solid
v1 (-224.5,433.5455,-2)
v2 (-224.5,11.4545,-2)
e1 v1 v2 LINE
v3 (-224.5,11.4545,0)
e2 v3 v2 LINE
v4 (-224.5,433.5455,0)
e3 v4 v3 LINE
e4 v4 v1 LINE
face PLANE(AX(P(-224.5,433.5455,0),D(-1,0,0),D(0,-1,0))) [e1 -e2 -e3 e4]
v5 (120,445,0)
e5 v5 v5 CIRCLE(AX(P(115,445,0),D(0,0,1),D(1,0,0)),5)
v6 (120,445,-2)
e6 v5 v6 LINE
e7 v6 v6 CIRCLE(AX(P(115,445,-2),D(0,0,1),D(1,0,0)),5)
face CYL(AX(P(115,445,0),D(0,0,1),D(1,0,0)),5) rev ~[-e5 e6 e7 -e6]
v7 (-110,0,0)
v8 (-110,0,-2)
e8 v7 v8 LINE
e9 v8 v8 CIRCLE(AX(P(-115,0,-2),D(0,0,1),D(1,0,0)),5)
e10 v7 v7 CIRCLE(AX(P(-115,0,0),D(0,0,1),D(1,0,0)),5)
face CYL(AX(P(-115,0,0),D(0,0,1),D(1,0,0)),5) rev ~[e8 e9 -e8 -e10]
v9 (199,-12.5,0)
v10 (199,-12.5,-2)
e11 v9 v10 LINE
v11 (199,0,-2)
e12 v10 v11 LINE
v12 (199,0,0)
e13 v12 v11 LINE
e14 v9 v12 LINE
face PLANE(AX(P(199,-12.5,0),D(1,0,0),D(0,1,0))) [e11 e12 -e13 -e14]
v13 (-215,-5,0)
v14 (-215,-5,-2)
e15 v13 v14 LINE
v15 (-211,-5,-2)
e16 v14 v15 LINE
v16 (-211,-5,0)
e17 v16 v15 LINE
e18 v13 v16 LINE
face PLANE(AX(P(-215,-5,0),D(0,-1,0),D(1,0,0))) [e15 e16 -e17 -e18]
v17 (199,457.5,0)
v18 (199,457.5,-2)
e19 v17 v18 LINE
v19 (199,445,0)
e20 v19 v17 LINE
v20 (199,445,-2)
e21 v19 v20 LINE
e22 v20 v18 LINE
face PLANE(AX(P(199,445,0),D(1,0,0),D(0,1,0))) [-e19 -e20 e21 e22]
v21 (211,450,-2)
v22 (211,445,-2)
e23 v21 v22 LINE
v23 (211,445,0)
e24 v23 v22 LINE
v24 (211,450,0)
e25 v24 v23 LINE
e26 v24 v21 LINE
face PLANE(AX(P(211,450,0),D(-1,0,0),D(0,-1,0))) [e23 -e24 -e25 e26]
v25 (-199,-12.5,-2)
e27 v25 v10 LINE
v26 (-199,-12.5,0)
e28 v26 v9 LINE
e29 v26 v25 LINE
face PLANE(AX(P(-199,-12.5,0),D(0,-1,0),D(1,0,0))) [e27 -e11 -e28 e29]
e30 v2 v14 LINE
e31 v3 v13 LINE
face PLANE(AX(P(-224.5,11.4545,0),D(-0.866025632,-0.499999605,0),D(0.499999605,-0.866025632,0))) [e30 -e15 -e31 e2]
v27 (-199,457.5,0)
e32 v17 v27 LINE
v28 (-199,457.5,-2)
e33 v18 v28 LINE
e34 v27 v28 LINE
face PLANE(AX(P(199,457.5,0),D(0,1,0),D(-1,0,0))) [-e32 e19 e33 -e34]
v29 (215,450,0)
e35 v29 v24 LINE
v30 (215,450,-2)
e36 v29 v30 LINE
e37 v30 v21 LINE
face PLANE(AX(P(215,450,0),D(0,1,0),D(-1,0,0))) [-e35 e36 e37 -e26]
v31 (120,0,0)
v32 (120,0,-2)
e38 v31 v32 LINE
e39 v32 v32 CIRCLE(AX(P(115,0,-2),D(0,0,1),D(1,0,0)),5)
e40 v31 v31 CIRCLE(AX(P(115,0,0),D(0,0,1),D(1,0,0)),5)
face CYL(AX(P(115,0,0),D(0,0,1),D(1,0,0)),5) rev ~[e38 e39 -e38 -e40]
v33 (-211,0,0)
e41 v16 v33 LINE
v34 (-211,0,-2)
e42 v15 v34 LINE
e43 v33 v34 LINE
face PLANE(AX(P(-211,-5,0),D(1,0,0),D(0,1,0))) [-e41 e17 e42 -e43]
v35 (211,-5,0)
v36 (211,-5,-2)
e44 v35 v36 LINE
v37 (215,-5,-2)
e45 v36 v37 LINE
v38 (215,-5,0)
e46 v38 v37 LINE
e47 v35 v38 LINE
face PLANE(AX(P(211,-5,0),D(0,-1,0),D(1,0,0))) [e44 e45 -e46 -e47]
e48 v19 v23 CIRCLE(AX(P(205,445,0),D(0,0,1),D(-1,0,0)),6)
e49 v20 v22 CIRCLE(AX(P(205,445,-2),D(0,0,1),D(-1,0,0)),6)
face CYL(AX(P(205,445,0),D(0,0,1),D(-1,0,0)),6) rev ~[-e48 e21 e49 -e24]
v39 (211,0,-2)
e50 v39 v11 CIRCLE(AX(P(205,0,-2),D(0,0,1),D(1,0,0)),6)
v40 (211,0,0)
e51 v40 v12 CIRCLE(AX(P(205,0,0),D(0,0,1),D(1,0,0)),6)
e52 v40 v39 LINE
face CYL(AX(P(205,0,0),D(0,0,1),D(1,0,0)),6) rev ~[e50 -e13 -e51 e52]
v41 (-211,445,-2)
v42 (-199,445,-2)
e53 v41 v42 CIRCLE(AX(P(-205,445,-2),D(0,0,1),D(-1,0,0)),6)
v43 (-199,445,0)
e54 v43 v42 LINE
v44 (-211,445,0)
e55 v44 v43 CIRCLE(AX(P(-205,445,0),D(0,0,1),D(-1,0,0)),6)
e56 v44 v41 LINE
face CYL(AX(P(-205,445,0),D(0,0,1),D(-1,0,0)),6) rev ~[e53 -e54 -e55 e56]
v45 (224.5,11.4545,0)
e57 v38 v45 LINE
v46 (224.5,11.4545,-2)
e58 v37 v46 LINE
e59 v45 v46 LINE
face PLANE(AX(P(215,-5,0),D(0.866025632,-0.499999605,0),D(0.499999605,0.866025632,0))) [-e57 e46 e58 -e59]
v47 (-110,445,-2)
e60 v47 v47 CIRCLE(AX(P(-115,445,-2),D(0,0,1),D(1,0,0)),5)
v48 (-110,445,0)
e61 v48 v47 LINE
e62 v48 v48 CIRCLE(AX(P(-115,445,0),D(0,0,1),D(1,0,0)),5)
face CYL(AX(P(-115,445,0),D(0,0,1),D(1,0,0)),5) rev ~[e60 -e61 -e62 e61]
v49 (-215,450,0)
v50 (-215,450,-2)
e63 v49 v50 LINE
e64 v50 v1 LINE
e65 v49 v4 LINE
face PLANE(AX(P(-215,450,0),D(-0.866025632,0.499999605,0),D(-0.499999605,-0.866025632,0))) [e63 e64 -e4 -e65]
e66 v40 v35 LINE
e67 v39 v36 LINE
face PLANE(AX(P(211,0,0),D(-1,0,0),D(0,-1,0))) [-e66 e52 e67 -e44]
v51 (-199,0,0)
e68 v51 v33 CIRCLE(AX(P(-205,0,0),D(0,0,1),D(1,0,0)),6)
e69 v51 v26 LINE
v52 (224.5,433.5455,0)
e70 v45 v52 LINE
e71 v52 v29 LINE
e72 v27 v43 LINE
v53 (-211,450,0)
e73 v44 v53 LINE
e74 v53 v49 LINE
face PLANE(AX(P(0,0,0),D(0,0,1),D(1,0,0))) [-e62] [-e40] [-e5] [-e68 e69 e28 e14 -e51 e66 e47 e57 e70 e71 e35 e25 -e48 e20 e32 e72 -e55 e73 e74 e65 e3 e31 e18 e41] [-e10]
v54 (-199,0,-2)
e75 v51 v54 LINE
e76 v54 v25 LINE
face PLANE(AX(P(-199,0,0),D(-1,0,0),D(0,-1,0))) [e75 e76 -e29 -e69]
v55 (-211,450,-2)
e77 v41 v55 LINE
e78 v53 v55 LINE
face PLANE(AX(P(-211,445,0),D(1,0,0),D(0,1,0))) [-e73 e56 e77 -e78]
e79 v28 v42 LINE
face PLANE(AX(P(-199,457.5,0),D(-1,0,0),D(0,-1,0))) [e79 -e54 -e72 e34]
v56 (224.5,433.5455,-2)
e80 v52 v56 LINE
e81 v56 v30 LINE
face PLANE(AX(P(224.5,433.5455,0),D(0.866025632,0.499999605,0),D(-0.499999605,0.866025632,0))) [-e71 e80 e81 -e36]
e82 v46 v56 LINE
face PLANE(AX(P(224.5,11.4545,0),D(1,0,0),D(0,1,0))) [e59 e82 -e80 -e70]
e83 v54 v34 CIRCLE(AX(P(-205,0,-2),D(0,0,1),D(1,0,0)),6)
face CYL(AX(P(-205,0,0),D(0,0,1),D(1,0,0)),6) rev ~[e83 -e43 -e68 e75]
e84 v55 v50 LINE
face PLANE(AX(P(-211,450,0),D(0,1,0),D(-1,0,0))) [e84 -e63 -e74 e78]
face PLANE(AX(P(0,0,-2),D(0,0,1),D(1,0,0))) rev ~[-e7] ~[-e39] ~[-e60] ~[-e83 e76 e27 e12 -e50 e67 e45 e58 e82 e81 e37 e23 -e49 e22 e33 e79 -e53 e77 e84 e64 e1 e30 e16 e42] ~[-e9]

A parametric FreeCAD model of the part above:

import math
import FreeCAD as App
import Part
import Sketcher
from FreeCAD import Vector
Q = App.Units.Quantity

doc = App.newDocument("Part")
body = doc.addObject("PartDesign::Body", "Body")

sketch1 = body.newObject("Sketcher::SketchObject", "Sketch")
sketch1.AttachmentSupport = (doc.getObject("XY_Plane"), [""])
sketch1.MapMode = "FlatFace"
sketch1.addGeometry([
    Part.LineSegment(Vector(-215, 450, 0), Vector(-224.5, 433.5, 0)),
    Part.LineSegment(Vector(-224.5, 433.5, 0), Vector(-224.5, 11.5, 0)),
    Part.LineSegment(Vector(-224.5, 11.5, 0), Vector(-215, -5, 0)),
    Part.LineSegment(Vector(-215, -5, 0), Vector(-211, -5, 0)),
    Part.LineSegment(Vector(-211, -5, 0), Vector(-211, 0, 0)),
    Part.ArcOfCircle(Part.Circle(Vector(-205, 0, 0), Vector(0, 0, 1), 6), math.radians(0), math.radians(180)),
    Part.LineSegment(Vector(-199, 0, 0), Vector(-199, -12.5, 0)),
    Part.LineSegment(Vector(-199, -12.5, 0), Vector(199, -12.5, 0)),
    Part.LineSegment(Vector(199, -12.5, 0), Vector(199, 0, 0)),
    Part.ArcOfCircle(Part.Circle(Vector(205, 0, 0), Vector(0, 0, 1), 6), math.radians(0), math.radians(180)),
    Part.LineSegment(Vector(211, 0, 0), Vector(211, -5, 0)),
    Part.LineSegment(Vector(211, -5, 0), Vector(215, -5, 0)),
    Part.LineSegment(Vector(215, -5, 0), Vector(224.5, 11.5, 0)),
    Part.LineSegment(Vector(224.5, 11.5, 0), Vector(224.5, 433.5, 0)),
    Part.LineSegment(Vector(224.5, 433.5, 0), Vector(215, 450, 0)),
    Part.LineSegment(Vector(215, 450, 0), Vector(211, 450, 0)),
    Part.LineSegment(Vector(211, 450, 0), Vector(211, 445, 0)),
    Part.ArcOfCircle(Part.Circle(Vector(205, 445, 0), Vector(0, 0, 1), 6), math.radians(180), math.radians(360)),
    Part.LineSegment(Vector(199, 445, 0), Vector(199, 457.5, 0)),
    Part.LineSegment(Vector(199, 457.5, 0), Vector(-199, 457.5, 0)),
    Part.LineSegment(Vector(-199, 457.5, 0), Vector(-199, 445, 0)),
    Part.ArcOfCircle(Part.Circle(Vector(-205, 445, 0), Vector(0, 0, 1), 6), math.radians(180), math.radians(360)),
    Part.LineSegment(Vector(-211, 445, 0), Vector(-211, 450, 0)),
    Part.LineSegment(Vector(-211, 450, 0), Vector(-215, 450, 0)),
    Part.Circle(Vector(-115, 0, 0), Vector(0, 0, 1), 5),
    Part.Circle(Vector(115, 0, 0), Vector(0, 0, 1), 5),
    Part.Circle(Vector(-115, 445, 0), Vector(0, 0, 1), 5),
    Part.Circle(Vector(115, 445, 0), Vector(0, 0, 1), 5),
], False)
sketch1.addConstraint([
    Sketcher.Constraint("Coincident", 0, 2, 1, 1),
    Sketcher.Constraint("Coincident", 1, 2, 2, 1),
    Sketcher.Constraint("Coincident", 2, 2, 3, 1),
    Sketcher.Constraint("Coincident", 3, 2, 4, 1),
    Sketcher.Constraint("Tangent", 4, 2, 5, 2),
    Sketcher.Constraint("Tangent", 5, 1, 6, 1),
    Sketcher.Constraint("Coincident", 6, 2, 7, 1),
    Sketcher.Constraint("Coincident", 7, 2, 8, 1),
    Sketcher.Constraint("Tangent", 8, 2, 9, 2),
    Sketcher.Constraint("Tangent", 9, 1, 10, 1),
    Sketcher.Constraint("Coincident", 10, 2, 11, 1),
    Sketcher.Constraint("Coincident", 11, 2, 12, 1),
    Sketcher.Constraint("Coincident", 12, 2, 13, 1),
    Sketcher.Constraint("Coincident", 13, 2, 14, 1),
    Sketcher.Constraint("Coincident", 14, 2, 15, 1),
    Sketcher.Constraint("Coincident", 15, 2, 16, 1),
    Sketcher.Constraint("Tangent", 16, 2, 17, 2),
    Sketcher.Constraint("Tangent", 17, 1, 18, 1),
    Sketcher.Constraint("Coincident", 18, 2, 19, 1),
    Sketcher.Constraint("Coincident", 19, 2, 20, 1),
    Sketcher.Constraint("Tangent", 20, 2, 21, 2),
    Sketcher.Constraint("Tangent", 21, 1, 22, 1),
    Sketcher.Constraint("Coincident", 22, 2, 23, 1),
    Sketcher.Constraint("Coincident", 23, 2, 0, 1),
    Sketcher.Constraint("Vertical", 1),
    Sketcher.Constraint("Horizontal", 3),
    Sketcher.Constraint("Vertical", 4),
    Sketcher.Constraint("Vertical", 6),
    Sketcher.Constraint("Horizontal", 7),
    Sketcher.Constraint("Vertical", 8),
    Sketcher.Constraint("Vertical", 10),
    Sketcher.Constraint("Horizontal", 11),
    Sketcher.Constraint("Vertical", 13),
    Sketcher.Constraint("Horizontal", 15),
    Sketcher.Constraint("Vertical", 16),
    Sketcher.Constraint("Vertical", 18),
    Sketcher.Constraint("Horizontal", 19),
    Sketcher.Constraint("Vertical", 20),
    Sketcher.Constraint("Vertical", 22),
    Sketcher.Constraint("Horizontal", 23),
    Sketcher.Constraint("Equal", 5, 9),
    Sketcher.Constraint("Equal", 9, 17),
    Sketcher.Constraint("Equal", 17, 21),
    Sketcher.Constraint("Equal", 24, 25),
    Sketcher.Constraint("Equal", 25, 26),
    Sketcher.Constraint("Equal", 26, 27),
    Sketcher.Constraint("Symmetric", 5, 3, 9, 3, -1, 1),
    Sketcher.Constraint("Symmetric", 24, 3, 25, 3, -1, 1),
    Sketcher.Constraint("Symmetric", 17, 3, 21, 3, -2),
    Sketcher.Constraint("Symmetric", 26, 3, 27, 3, -2),
    Sketcher.Constraint("Symmetric", 2, 2, 11, 2, -2),
    Sketcher.Constraint("Symmetric", 1, 2, 12, 2, -2),
    Sketcher.Constraint("Symmetric", 14, 2, 23, 2, -2),
    Sketcher.Constraint("PointOnObject", 5, 3, -1),
    Sketcher.Constraint("PointOnObject", 24, 3, -1),
    Sketcher.Constraint("Parallel", 0, 12),
    Sketcher.Constraint("Parallel", 2, 14),
    Sketcher.Constraint("Horizontal", 21, 3, 26, 3),
    Sketcher.Constraint("Vertical", 9, 3, 17, 3),
    Sketcher.Constraint("Vertical", 24, 3, 26, 3),
    Sketcher.Constraint("Vertical", 11, 2, 14, 2),
    Sketcher.Constraint("Equal", 10, 16),
    Sketcher.Constraint("Equal", 8, 18),
    Sketcher.Constraint("Diameter", 24, Q("10 mm")),
    Sketcher.Constraint("Radius", 5, Q("6 mm")),
    Sketcher.Constraint("DistanceX", 3, 1, 3, 2, Q("4 mm")),
    Sketcher.Constraint("DistanceX", 7, 1, 7, 2, Q("398 mm")),
    Sketcher.Constraint("DistanceY", 4, 1, 4, 2, Q("5 mm")),
    Sketcher.Constraint("Angle", 0, Q("-120 deg")),
    Sketcher.Constraint("Distance", 0, Q("19 mm")),
    Sketcher.Constraint("DistanceY", 6, 2, 6, 1, Q("12.5 mm")),
    Sketcher.Constraint("DistanceY", -1, 1, 17, 3, Q("445 mm")),
    Sketcher.Constraint("DistanceX", 24, 3, -1, 1, Q("115 mm")),
])
pad1 = body.newObject("PartDesign::Pad", "Pad")
pad1.Profile = sketch1
pad1.Length = 2
pad1.Reversed = True

doc.recompute()
